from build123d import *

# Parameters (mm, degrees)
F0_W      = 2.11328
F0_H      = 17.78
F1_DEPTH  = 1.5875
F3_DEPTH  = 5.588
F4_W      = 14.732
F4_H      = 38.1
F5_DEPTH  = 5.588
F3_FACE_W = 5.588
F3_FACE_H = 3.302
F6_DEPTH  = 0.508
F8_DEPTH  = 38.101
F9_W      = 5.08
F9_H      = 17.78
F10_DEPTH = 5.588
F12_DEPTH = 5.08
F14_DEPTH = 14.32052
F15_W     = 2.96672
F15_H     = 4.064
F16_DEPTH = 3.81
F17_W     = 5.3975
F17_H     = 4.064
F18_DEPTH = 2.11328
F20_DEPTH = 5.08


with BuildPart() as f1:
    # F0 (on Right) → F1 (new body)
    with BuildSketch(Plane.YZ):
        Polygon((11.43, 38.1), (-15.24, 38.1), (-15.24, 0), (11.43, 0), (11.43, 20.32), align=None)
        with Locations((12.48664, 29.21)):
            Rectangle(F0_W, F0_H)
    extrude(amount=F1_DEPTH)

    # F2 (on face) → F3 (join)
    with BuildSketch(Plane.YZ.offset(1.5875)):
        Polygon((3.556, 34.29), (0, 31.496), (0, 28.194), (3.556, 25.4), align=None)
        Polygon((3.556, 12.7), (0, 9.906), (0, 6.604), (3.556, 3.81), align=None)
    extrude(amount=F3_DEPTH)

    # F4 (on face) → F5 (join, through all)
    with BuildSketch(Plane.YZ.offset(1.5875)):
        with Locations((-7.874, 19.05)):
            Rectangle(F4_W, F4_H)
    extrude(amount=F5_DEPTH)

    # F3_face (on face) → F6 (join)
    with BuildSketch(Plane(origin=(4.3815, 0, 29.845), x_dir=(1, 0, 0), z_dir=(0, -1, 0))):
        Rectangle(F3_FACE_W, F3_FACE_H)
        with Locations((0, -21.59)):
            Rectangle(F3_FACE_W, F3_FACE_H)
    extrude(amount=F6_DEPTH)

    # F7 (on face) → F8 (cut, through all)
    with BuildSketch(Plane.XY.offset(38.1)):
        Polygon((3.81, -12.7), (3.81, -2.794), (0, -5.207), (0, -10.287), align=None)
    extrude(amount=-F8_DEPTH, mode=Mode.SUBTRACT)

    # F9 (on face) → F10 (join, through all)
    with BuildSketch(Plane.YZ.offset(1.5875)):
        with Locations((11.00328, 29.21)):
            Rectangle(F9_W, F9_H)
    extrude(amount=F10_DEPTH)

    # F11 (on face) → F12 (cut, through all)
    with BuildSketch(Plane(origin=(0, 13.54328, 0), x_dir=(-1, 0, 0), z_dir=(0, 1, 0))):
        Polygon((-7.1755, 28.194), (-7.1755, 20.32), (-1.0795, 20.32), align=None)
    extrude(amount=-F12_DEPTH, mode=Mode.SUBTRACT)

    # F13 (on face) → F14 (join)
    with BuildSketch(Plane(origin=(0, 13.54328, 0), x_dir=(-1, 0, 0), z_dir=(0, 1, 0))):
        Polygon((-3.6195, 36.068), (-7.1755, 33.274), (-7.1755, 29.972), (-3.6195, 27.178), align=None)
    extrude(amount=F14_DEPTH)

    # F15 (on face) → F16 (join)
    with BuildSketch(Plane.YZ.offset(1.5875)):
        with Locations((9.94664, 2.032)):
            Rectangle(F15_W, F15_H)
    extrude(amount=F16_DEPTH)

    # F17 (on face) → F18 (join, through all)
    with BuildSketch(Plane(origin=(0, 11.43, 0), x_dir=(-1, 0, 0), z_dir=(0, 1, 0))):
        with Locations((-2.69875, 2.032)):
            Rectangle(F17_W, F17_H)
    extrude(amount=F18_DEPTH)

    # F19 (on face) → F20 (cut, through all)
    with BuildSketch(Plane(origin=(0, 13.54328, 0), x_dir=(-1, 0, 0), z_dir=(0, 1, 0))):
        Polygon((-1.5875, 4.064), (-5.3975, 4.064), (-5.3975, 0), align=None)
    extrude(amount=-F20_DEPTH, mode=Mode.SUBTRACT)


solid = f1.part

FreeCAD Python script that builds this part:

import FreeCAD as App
import Part
import Sketcher
from FreeCAD import Vector
Q = App.Units.Quantity


def add_polygon(sketch, points):
    """Adds a closed chain of lines whose ends are joined by coincident constraints."""
    first, n = sketch.GeometryCount, len(points)
    for a, b in zip(points, points[1:] + points[:1]):
        sketch.addGeometry(Part.LineSegment(App.Vector(*a, 0), App.Vector(*b, 0)), False)
    for i in range(n):
        sketch.addConstraint(Sketcher.Constraint("Coincident", first + i, 2, first + (i + 1) % n, 1))

doc = App.newDocument("Part")
body = doc.addObject("PartDesign::Body", "Body")

sketch1 = body.newObject("Sketcher::SketchObject", "Sketch")
sketch1.AttachmentSupport = (doc.getObject("YZ_Plane"), [""])
sketch1.MapMode = "FlatFace"
add_polygon(sketch1, [(-15.2, 38.1), (-15.2, 0), (11.4, 0), (11.4, 20.3), (13.5, 20.3), (13.5, 38.1)])
sketch1.addConstraint([
    Sketcher.Constraint("Vertical", 0),
    Sketcher.Constraint("Horizontal", 1),
    Sketcher.Constraint("Vertical", 2),
    Sketcher.Constraint("Horizontal", 3),
    Sketcher.Constraint("Vertical", 4),
    Sketcher.Constraint("Horizontal", 5),
    Sketcher.Constraint("PointOnObject", 0, 2, -1),
    Sketcher.Constraint("DistanceY", 0, 2, 0, 1, Q("1.5 in")),
    Sketcher.Constraint("DistanceY", 2, 1, 2, 2, Q("0.8 in")),
    Sketcher.Constraint("DistanceX", 1, 1, 1, 2, Q("1.05 in")),
    Sketcher.Constraint("DistanceX", 0, 2, -1, 1, Q("0.6 in")),
    Sketcher.Constraint("DistanceX", 3, 1, 3, 2, Q("0.0832 in")),
])
pad1 = body.newObject("PartDesign::Pad", "Pad")
pad1.Profile = sketch1
pad1.Length = Q("0.0625 in")

sketch2 = body.newObject("Sketcher::SketchObject", "Sketch001")
sketch2.AttachmentSupport = (doc.getObject("YZ_Plane"), [""])
sketch2.MapMode = "FlatFace"
sketch2.AttachmentOffset = App.Placement(Vector(0, 0, 0.0625 * 25.4), App.Rotation())
add_polygon(sketch2, [(3.6, 34.3), (0, 31.5), (0, 28.2), (3.6, 25.4)])
add_polygon(sketch2, [(3.6, 12.7), (0, 9.9), (0, 6.6), (3.6, 3.8)])
sketch2.addConstraint([
    Sketcher.Constraint("Vertical", 1),
    Sketcher.Constraint("Vertical", 3),
    Sketcher.Constraint("Vertical", 5),
    Sketcher.Constraint("Vertical", 7),
    Sketcher.Constraint("PointOnObject", 0, 2, -2),
    Sketcher.Constraint("PointOnObject", 4, 2, -2),
    Sketcher.Constraint("Parallel", 0, 4),
    Sketcher.Constraint("Parallel", 2, 6),
    Sketcher.Constraint("Vertical", 3, 2, 6, 2),
    Sketcher.Constraint("Equal", 1, 5),
    Sketcher.Constraint("Equal", 0, 2),
    Sketcher.Constraint("DistanceY", -1, 1, 2, 2, Q("1 in")),
    Sketcher.Constraint("DistanceY", 1, 2, 1, 1, Q("0.13 in")),
    Sketcher.Constraint("DistanceY", 3, 1, 3, 2, Q("0.35 in")),
    Sketcher.Constraint("DistanceY", -1, 1, 7, 2, Q("0.5 in")),
    Sketcher.Constraint("DistanceX", -1, 1, 2, 2, Q("0.14 in")),
])
pad2 = body.newObject("PartDesign::Pad", "Pad001")
pad2.Profile = sketch2
pad2.Length = Q("0.22 in")

sketch3 = body.newObject("Sketcher::SketchObject", "Sketch002")
sketch3.AttachmentSupport = (doc.getObject("YZ_Plane"), [""])
sketch3.MapMode = "FlatFace"
sketch3.AttachmentOffset = App.Placement(Vector(0, 0, 0.0625 * 25.4), App.Rotation())
add_polygon(sketch3, [(-15, 38), (-15, 0), (-1, 0), (-1, 38)])
sketch3.addConstraint([
    Sketcher.Constraint("Vertical", 0),
    Sketcher.Constraint("Horizontal", 1),
    Sketcher.Constraint("Vertical", 2),
    Sketcher.Constraint("Horizontal", 3),
    Sketcher.Constraint("PointOnObject", 0, 2, -1),
    Sketcher.Constraint("DistanceY", 0, 2, 0, 1, Q("1.5 in")),
    Sketcher.Constraint("DistanceX", 1, 1, 1, 2, Q("0.58 in")),
    Sketcher.Constraint("DistanceX", 0, 2, -1, 1, Q("0.6 in")),
])
pad3 = body.newObject("PartDesign::Pad", "Pad002")
pad3.Profile = sketch3
pad3.Length = Q("0.22 in")

sketch4 = body.newObject("Sketcher::SketchObject", "Sketch003")
sketch4.AttachmentSupport = (doc.getObject("XZ_Plane"), [""])
sketch4.MapMode = "FlatFace"
add_polygon(sketch4, [(1.6, 31.5), (1.6, 28.2), (7.2, 28.2), (7.2, 31.5)])
add_polygon(sketch4, [(1.6, 9.9), (1.6, 6.6), (7.2, 6.6), (7.2, 9.9)])
sketch4.addConstraint([
    Sketcher.Constraint("Vertical", 0),
    Sketcher.Constraint("Horizontal", 1),
    Sketcher.Constraint("Vertical", 2),
    Sketcher.Constraint("Horizontal", 3),
    Sketcher.Constraint("Vertical", 4),
    Sketcher.Constraint("Horizontal", 5),
    Sketcher.Constraint("Vertical", 6),
    Sketcher.Constraint("Horizontal", 7),
    Sketcher.Constraint("Vertical", 3, 2, 4, 2),
    Sketcher.Constraint("Vertical", 2, 2, 5, 2),
    Sketcher.Constraint("Equal", 2, 4),
    Sketcher.Constraint("DistanceX", 1, 1, 1, 2, Q("0.22 in")),
    Sketcher.Constraint("DistanceY", 0, 2, 0, 1, Q("0.13 in")),
    Sketcher.Constraint("DistanceY", -1, 1, 0, 2, Q("1.11 in")),
    Sketcher.Constraint("DistanceY", -1, 1, 4, 2, Q("0.26 in")),
    Sketcher.Constraint("DistanceX", -1, 1, 0, 2, Q("0.0625 in")),
])
pad4 = body.newObject("PartDesign::Pad", "Pad003")
pad4.Profile = sketch4
pad4.Length = Q("0.02 in")

sketch5 = body.newObject("Sketcher::SketchObject", "Sketch004")
sketch5.AttachmentSupport = (doc.getObject("XY_Plane"), [""])
sketch5.MapMode = "FlatFace"
sketch5.AttachmentOffset = App.Placement(Vector(0, 0, 1.5 * 25.4), App.Rotation())
add_polygon(sketch5, [(3.8, -12.7), (3.8, -2.8), (0, -5.2), (0, -10.3)])
sketch5.addConstraint([
    Sketcher.Constraint("Vertical", 0),
    Sketcher.Constraint("Vertical", 2),
    Sketcher.Constraint("PointOnObject", 1, 2, -2),
    Sketcher.Constraint("Equal", 1, 3),
    Sketcher.Constraint("DistanceY", 2, 2, 2, 1, Q("0.2 in")),
    Sketcher.Constraint("DistanceY", 0, 1, 0, 2, Q("0.39 in")),
    Sketcher.Constraint("DistanceY", 3, 2, -1, 1, Q("0.5 in")),
    Sketcher.Constraint("DistanceX", -1, 1, 0, 2, Q("0.15 in")),
])
pocket1 = body.newObject("PartDesign::Pocket", "Pocket")
pocket1.Profile = sketch5
pocket1.Type = "ThroughAll"

sketch6 = body.newObject("Sketcher::SketchObject", "Sketch005")
sketch6.AttachmentSupport = (doc.getObject("YZ_Plane"), [""])
sketch6.MapMode = "FlatFace"
sketch6.AttachmentOffset = App.Placement(Vector(0, 0, 0.0625 * 25.4), App.Rotation())
add_polygon(sketch6, [(8, 38), (8, 20), (14, 20), (14, 38)])
sketch6.addConstraint([
    Sketcher.Constraint("Vertical", 0),
    Sketcher.Constraint("Horizontal", 1),
    Sketcher.Constraint("Vertical", 2),
    Sketcher.Constraint("Horizontal", 3),
    Sketcher.Constraint("DistanceX", 1, 1, 1, 2, Q("0.2 in")),
    Sketcher.Constraint("DistanceY", 0, 2, 0, 1, Q("0.7 in")),
    Sketcher.Constraint("DistanceY", -1, 1, 0, 2, Q("0.8 in")),
    Sketcher.Constraint("DistanceX", -1, 1, 0, 2, Q("0.3332 in")),
])
pad5 = body.newObject("PartDesign::Pad", "Pad004")
pad5.Profile = sketch6
pad5.Length = Q("0.22 in")

sketch7 = body.newObject("Sketcher::SketchObject", "Sketch006")
sketch7.AttachmentSupport = (doc.getObject("XZ_Plane"), [""])
sketch7.MapMode = "FlatFace"
sketch7.AttachmentOffset = App.Placement(Vector(0, 0, -0.5332 * 25.4), App.Rotation())
add_polygon(sketch7, [(7, 28), (7, 20), (1, 20)])
sketch7.addConstraint([
    Sketcher.Constraint("Vertical", 0),
    Sketcher.Constraint("Horizontal", 1),
    Sketcher.Constraint("DistanceX", 1, 2, 1, 1, Q("0.24 in")),
    Sketcher.Constraint("DistanceY", 0, 2, 0, 1, Q("0.31 in")),
    Sketcher.Constraint("DistanceY", -1, 1, 0, 2, Q("0.8 in")),
    Sketcher.Constraint("DistanceX", -1, 1, 0, 2, Q("0.2825 in")),
])
pocket2 = body.newObject("PartDesign::Pocket", "Pocket001")
pocket2.Profile = sketch7
pocket2.Length = Q("0.2 in")
pocket2.Reversed = True

sketch8 = body.newObject("Sketcher::SketchObject", "Sketch007")
sketch8.AttachmentSupport = (doc.getObject("XZ_Plane"), [""])
sketch8.MapMode = "FlatFace"
sketch8.AttachmentOffset = App.Placement(Vector(0, 0, -0.5332 * 25.4), App.Rotation())
add_polygon(sketch8, [(3.6, 36.1), (7.2, 33.3), (7.2, 30), (3.6, 27.2)])
sketch8.addConstraint([
    Sketcher.Constraint("Vertical", 1),
    Sketcher.Constraint("Vertical", 3),
    Sketcher.Constraint("Equal", 0, 2),
    Sketcher.Constraint("DistanceY", 1, 2, 1, 1, Q("0.13 in")),
    Sketcher.Constraint("DistanceY", 3, 1, 3, 2, Q("0.35 in")),
    Sketcher.Constraint("DistanceY", -1, 1, 0, 2, Q("1.31 in")),
    Sketcher.Constraint("DistanceX", 2, 2, 1, 2, Q("0.14 in")),
    Sketcher.Constraint("DistanceX", -1, 1, 0, 2, Q("0.2825 in")),
])
pad6 = body.newObject("PartDesign::Pad", "Pad005")
pad6.Profile = sketch8
pad6.Length = Q("0.5638 in")
pad6.Reversed = True

sketch9 = body.newObject("Sketcher::SketchObject", "Sketch008")
sketch9.AttachmentSupport = (doc.getObject("YZ_Plane"), [""])
sketch9.MapMode = "FlatFace"
sketch9.AttachmentOffset = App.Placement(Vector(0, 0, 0.0625 * 25.4), App.Rotation())
add_polygon(sketch9, [(8.5, 4.1), (8.5, 0), (11.4, 0), (11.4, 4.1)])
sketch9.addConstraint([
    Sketcher.Constraint("Vertical", 0),
    Sketcher.Constraint("Horizontal", 1),
    Sketcher.Constraint("Vertical", 2),
    Sketcher.Constraint("Horizontal", 3),
    Sketcher.Constraint("PointOnObject", 0, 2, -1),
    Sketcher.Constraint("DistanceY", 0, 2, 0, 1, Q("0.16 in")),
    Sketcher.Constraint("DistanceX", -1, 1, 1, 2, Q("0.45 in")),
    Sketcher.Constraint("DistanceX", 1, 1, 1, 2, Q("0.1168 in")),
])
pad7 = body.newObject("PartDesign::Pad", "Pad006")
pad7.Profile = sketch9
pad7.Length = Q("0.15 in")

sketch10 = body.newObject("Sketcher::SketchObject", "Sketch009")
sketch10.AttachmentSupport = (doc.getObject("XZ_Plane"), [""])
sketch10.MapMode = "FlatFace"
sketch10.AttachmentOffset = App.Placement(Vector(0, 0, -0.45 * 25.4), App.Rotation())
add_polygon(sketch10, [(5.4, 4.1), (5.4, 0), (0, 0), (0, 4.1)])
sketch10.addConstraint([
    Sketcher.Constraint("Vertical", 0),
    Sketcher.Constraint("Horizontal", 1),
    Sketcher.Constraint("Vertical", 2),
    Sketcher.Constraint("Horizontal", 3),
    Sketcher.Constraint("Coincident", 1, 2, -1, 1),
    Sketcher.Constraint("DistanceY", 0, 2, 0, 1, Q("0.16 in")),
    Sketcher.Constraint("DistanceX", 1, 2, 1, 1, Q("0.2125 in")),
])
pad8 = body.newObject("PartDesign::Pad", "Pad007")
pad8.Profile = sketch10
pad8.Length = Q("0.0832 in")
pad8.Reversed = True

sketch11 = body.newObject("Sketcher::SketchObject", "Sketch010")
sketch11.AttachmentSupport = (doc.getObject("XZ_Plane"), [""])
sketch11.MapMode = "FlatFace"
sketch11.AttachmentOffset = App.Placement(Vector(0, 0, -0.5332 * 25.4), App.Rotation())
add_polygon(sketch11, [(1.6, 4.1), (5.4, 4.1), (5.4, 0)])
sketch11.addConstraint([
    Sketcher.Constraint("Horizontal", 0),
    Sketcher.Constraint("Vertical", 1),
    Sketcher.Constraint("PointOnObject", 1, 2, -1),
    Sketcher.Constraint("DistanceX", 0, 1, 0, 2, Q("0.15 in")),
    Sketcher.Constraint("DistanceY", 1, 2, 1, 1, Q("0.16 in")),
    Sketcher.Constraint("DistanceX", -1, 1, 2, 2, Q("0.0625 in")),
])
pocket3 = body.newObject("PartDesign::Pocket", "Pocket002")
pocket3.Profile = sketch11
pocket3.Length = Q("0.2 in")
pocket3.Reversed = True

doc.recompute()
